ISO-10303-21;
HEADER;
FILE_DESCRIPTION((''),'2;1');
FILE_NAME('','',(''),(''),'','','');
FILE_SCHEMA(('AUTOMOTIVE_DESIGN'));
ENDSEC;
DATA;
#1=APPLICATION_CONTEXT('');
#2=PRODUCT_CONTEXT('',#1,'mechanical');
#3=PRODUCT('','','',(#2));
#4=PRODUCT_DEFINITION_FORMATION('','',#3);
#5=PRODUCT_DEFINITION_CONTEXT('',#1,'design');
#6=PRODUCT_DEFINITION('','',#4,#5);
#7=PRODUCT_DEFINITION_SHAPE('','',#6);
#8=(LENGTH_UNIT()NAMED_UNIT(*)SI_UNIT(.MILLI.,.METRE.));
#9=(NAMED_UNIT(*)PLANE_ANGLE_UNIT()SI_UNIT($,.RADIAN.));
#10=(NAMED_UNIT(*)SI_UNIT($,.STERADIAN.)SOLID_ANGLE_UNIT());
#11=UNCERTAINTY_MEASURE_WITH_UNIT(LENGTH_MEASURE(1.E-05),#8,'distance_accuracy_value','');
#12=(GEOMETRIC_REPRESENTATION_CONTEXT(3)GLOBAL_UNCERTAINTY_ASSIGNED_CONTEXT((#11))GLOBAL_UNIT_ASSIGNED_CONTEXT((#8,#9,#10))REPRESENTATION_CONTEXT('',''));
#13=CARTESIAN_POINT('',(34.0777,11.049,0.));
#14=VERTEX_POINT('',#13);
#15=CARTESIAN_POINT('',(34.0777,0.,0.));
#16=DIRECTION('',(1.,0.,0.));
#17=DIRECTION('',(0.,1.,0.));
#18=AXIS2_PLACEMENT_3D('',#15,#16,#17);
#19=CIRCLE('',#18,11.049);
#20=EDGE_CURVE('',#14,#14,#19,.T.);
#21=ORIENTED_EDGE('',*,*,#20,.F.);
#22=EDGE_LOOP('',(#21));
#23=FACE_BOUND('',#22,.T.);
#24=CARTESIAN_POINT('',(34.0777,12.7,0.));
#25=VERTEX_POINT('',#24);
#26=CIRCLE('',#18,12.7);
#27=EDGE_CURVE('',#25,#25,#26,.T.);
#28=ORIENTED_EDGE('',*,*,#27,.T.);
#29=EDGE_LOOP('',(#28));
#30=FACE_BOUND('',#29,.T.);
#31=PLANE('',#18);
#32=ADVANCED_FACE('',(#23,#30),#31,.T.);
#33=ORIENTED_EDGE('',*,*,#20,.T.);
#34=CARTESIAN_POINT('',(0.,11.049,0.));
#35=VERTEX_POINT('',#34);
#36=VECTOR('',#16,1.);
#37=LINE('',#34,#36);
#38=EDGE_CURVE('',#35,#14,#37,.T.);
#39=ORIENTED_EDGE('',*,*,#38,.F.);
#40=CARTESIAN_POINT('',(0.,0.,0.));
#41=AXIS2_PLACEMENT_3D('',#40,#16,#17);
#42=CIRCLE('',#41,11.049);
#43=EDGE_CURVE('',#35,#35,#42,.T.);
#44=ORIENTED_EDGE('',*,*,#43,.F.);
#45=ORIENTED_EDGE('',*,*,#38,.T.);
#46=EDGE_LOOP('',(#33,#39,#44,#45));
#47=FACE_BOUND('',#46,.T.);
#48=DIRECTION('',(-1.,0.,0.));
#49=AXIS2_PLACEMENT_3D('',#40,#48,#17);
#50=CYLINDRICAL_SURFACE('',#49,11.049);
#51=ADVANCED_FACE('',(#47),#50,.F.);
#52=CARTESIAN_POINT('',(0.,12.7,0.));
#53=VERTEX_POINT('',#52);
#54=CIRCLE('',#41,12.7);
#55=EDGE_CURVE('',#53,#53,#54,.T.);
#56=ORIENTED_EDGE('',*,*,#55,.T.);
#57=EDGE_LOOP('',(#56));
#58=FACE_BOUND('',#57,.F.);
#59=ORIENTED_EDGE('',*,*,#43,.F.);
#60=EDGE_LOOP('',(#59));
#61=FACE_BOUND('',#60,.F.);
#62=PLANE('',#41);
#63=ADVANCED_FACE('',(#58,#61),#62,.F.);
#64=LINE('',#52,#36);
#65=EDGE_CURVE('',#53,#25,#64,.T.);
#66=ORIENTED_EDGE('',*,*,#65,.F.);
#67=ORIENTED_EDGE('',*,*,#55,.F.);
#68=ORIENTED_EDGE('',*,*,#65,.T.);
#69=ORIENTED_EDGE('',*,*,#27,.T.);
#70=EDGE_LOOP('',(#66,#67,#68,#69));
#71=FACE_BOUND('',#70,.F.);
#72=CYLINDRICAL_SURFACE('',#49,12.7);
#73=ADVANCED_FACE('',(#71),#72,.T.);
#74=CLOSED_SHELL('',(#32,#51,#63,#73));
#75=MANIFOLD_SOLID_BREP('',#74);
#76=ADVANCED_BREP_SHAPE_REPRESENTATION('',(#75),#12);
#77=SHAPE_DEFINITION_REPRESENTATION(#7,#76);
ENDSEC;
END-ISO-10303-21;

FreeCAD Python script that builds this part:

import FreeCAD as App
import Part
import Sketcher

V = App.Vector
Q = App.Units.Quantity

doc = App.newDocument("Part")
body = doc.addObject("PartDesign::Body", "Body")

# Sketch on YZ plane
sketch1 = body.newObject("Sketcher::SketchObject", "Sketch")
sketch1.AttachmentSupport = (doc.getObject("YZ_Plane"), [""])
sketch1.MapMode = "FlatFace"
sketch1.addGeometry(Part.Circle(V(0, 0, 0), V(0, 0, 1), 13), False)
sketch1.addGeometry(Part.Circle(V(0, 0, 0), V(0, 0, 1), 11), False)
sketch1.addConstraint(Sketcher.Constraint("Coincident", 0, 3, -1, 1))
sketch1.addConstraint(Sketcher.Constraint("Coincident", 1, 3, -1, 1))
sketch1.addConstraint(Sketcher.Constraint("Diameter", 0, Q("1 in")))
sketch1.addConstraint(Sketcher.Constraint("Diameter", 1, Q("0.87 in")))
pad1 = body.newObject("PartDesign::Pad", "Pad")
pad1.Profile = sketch1
pad1.Length = 34.0777

doc.recompute()
